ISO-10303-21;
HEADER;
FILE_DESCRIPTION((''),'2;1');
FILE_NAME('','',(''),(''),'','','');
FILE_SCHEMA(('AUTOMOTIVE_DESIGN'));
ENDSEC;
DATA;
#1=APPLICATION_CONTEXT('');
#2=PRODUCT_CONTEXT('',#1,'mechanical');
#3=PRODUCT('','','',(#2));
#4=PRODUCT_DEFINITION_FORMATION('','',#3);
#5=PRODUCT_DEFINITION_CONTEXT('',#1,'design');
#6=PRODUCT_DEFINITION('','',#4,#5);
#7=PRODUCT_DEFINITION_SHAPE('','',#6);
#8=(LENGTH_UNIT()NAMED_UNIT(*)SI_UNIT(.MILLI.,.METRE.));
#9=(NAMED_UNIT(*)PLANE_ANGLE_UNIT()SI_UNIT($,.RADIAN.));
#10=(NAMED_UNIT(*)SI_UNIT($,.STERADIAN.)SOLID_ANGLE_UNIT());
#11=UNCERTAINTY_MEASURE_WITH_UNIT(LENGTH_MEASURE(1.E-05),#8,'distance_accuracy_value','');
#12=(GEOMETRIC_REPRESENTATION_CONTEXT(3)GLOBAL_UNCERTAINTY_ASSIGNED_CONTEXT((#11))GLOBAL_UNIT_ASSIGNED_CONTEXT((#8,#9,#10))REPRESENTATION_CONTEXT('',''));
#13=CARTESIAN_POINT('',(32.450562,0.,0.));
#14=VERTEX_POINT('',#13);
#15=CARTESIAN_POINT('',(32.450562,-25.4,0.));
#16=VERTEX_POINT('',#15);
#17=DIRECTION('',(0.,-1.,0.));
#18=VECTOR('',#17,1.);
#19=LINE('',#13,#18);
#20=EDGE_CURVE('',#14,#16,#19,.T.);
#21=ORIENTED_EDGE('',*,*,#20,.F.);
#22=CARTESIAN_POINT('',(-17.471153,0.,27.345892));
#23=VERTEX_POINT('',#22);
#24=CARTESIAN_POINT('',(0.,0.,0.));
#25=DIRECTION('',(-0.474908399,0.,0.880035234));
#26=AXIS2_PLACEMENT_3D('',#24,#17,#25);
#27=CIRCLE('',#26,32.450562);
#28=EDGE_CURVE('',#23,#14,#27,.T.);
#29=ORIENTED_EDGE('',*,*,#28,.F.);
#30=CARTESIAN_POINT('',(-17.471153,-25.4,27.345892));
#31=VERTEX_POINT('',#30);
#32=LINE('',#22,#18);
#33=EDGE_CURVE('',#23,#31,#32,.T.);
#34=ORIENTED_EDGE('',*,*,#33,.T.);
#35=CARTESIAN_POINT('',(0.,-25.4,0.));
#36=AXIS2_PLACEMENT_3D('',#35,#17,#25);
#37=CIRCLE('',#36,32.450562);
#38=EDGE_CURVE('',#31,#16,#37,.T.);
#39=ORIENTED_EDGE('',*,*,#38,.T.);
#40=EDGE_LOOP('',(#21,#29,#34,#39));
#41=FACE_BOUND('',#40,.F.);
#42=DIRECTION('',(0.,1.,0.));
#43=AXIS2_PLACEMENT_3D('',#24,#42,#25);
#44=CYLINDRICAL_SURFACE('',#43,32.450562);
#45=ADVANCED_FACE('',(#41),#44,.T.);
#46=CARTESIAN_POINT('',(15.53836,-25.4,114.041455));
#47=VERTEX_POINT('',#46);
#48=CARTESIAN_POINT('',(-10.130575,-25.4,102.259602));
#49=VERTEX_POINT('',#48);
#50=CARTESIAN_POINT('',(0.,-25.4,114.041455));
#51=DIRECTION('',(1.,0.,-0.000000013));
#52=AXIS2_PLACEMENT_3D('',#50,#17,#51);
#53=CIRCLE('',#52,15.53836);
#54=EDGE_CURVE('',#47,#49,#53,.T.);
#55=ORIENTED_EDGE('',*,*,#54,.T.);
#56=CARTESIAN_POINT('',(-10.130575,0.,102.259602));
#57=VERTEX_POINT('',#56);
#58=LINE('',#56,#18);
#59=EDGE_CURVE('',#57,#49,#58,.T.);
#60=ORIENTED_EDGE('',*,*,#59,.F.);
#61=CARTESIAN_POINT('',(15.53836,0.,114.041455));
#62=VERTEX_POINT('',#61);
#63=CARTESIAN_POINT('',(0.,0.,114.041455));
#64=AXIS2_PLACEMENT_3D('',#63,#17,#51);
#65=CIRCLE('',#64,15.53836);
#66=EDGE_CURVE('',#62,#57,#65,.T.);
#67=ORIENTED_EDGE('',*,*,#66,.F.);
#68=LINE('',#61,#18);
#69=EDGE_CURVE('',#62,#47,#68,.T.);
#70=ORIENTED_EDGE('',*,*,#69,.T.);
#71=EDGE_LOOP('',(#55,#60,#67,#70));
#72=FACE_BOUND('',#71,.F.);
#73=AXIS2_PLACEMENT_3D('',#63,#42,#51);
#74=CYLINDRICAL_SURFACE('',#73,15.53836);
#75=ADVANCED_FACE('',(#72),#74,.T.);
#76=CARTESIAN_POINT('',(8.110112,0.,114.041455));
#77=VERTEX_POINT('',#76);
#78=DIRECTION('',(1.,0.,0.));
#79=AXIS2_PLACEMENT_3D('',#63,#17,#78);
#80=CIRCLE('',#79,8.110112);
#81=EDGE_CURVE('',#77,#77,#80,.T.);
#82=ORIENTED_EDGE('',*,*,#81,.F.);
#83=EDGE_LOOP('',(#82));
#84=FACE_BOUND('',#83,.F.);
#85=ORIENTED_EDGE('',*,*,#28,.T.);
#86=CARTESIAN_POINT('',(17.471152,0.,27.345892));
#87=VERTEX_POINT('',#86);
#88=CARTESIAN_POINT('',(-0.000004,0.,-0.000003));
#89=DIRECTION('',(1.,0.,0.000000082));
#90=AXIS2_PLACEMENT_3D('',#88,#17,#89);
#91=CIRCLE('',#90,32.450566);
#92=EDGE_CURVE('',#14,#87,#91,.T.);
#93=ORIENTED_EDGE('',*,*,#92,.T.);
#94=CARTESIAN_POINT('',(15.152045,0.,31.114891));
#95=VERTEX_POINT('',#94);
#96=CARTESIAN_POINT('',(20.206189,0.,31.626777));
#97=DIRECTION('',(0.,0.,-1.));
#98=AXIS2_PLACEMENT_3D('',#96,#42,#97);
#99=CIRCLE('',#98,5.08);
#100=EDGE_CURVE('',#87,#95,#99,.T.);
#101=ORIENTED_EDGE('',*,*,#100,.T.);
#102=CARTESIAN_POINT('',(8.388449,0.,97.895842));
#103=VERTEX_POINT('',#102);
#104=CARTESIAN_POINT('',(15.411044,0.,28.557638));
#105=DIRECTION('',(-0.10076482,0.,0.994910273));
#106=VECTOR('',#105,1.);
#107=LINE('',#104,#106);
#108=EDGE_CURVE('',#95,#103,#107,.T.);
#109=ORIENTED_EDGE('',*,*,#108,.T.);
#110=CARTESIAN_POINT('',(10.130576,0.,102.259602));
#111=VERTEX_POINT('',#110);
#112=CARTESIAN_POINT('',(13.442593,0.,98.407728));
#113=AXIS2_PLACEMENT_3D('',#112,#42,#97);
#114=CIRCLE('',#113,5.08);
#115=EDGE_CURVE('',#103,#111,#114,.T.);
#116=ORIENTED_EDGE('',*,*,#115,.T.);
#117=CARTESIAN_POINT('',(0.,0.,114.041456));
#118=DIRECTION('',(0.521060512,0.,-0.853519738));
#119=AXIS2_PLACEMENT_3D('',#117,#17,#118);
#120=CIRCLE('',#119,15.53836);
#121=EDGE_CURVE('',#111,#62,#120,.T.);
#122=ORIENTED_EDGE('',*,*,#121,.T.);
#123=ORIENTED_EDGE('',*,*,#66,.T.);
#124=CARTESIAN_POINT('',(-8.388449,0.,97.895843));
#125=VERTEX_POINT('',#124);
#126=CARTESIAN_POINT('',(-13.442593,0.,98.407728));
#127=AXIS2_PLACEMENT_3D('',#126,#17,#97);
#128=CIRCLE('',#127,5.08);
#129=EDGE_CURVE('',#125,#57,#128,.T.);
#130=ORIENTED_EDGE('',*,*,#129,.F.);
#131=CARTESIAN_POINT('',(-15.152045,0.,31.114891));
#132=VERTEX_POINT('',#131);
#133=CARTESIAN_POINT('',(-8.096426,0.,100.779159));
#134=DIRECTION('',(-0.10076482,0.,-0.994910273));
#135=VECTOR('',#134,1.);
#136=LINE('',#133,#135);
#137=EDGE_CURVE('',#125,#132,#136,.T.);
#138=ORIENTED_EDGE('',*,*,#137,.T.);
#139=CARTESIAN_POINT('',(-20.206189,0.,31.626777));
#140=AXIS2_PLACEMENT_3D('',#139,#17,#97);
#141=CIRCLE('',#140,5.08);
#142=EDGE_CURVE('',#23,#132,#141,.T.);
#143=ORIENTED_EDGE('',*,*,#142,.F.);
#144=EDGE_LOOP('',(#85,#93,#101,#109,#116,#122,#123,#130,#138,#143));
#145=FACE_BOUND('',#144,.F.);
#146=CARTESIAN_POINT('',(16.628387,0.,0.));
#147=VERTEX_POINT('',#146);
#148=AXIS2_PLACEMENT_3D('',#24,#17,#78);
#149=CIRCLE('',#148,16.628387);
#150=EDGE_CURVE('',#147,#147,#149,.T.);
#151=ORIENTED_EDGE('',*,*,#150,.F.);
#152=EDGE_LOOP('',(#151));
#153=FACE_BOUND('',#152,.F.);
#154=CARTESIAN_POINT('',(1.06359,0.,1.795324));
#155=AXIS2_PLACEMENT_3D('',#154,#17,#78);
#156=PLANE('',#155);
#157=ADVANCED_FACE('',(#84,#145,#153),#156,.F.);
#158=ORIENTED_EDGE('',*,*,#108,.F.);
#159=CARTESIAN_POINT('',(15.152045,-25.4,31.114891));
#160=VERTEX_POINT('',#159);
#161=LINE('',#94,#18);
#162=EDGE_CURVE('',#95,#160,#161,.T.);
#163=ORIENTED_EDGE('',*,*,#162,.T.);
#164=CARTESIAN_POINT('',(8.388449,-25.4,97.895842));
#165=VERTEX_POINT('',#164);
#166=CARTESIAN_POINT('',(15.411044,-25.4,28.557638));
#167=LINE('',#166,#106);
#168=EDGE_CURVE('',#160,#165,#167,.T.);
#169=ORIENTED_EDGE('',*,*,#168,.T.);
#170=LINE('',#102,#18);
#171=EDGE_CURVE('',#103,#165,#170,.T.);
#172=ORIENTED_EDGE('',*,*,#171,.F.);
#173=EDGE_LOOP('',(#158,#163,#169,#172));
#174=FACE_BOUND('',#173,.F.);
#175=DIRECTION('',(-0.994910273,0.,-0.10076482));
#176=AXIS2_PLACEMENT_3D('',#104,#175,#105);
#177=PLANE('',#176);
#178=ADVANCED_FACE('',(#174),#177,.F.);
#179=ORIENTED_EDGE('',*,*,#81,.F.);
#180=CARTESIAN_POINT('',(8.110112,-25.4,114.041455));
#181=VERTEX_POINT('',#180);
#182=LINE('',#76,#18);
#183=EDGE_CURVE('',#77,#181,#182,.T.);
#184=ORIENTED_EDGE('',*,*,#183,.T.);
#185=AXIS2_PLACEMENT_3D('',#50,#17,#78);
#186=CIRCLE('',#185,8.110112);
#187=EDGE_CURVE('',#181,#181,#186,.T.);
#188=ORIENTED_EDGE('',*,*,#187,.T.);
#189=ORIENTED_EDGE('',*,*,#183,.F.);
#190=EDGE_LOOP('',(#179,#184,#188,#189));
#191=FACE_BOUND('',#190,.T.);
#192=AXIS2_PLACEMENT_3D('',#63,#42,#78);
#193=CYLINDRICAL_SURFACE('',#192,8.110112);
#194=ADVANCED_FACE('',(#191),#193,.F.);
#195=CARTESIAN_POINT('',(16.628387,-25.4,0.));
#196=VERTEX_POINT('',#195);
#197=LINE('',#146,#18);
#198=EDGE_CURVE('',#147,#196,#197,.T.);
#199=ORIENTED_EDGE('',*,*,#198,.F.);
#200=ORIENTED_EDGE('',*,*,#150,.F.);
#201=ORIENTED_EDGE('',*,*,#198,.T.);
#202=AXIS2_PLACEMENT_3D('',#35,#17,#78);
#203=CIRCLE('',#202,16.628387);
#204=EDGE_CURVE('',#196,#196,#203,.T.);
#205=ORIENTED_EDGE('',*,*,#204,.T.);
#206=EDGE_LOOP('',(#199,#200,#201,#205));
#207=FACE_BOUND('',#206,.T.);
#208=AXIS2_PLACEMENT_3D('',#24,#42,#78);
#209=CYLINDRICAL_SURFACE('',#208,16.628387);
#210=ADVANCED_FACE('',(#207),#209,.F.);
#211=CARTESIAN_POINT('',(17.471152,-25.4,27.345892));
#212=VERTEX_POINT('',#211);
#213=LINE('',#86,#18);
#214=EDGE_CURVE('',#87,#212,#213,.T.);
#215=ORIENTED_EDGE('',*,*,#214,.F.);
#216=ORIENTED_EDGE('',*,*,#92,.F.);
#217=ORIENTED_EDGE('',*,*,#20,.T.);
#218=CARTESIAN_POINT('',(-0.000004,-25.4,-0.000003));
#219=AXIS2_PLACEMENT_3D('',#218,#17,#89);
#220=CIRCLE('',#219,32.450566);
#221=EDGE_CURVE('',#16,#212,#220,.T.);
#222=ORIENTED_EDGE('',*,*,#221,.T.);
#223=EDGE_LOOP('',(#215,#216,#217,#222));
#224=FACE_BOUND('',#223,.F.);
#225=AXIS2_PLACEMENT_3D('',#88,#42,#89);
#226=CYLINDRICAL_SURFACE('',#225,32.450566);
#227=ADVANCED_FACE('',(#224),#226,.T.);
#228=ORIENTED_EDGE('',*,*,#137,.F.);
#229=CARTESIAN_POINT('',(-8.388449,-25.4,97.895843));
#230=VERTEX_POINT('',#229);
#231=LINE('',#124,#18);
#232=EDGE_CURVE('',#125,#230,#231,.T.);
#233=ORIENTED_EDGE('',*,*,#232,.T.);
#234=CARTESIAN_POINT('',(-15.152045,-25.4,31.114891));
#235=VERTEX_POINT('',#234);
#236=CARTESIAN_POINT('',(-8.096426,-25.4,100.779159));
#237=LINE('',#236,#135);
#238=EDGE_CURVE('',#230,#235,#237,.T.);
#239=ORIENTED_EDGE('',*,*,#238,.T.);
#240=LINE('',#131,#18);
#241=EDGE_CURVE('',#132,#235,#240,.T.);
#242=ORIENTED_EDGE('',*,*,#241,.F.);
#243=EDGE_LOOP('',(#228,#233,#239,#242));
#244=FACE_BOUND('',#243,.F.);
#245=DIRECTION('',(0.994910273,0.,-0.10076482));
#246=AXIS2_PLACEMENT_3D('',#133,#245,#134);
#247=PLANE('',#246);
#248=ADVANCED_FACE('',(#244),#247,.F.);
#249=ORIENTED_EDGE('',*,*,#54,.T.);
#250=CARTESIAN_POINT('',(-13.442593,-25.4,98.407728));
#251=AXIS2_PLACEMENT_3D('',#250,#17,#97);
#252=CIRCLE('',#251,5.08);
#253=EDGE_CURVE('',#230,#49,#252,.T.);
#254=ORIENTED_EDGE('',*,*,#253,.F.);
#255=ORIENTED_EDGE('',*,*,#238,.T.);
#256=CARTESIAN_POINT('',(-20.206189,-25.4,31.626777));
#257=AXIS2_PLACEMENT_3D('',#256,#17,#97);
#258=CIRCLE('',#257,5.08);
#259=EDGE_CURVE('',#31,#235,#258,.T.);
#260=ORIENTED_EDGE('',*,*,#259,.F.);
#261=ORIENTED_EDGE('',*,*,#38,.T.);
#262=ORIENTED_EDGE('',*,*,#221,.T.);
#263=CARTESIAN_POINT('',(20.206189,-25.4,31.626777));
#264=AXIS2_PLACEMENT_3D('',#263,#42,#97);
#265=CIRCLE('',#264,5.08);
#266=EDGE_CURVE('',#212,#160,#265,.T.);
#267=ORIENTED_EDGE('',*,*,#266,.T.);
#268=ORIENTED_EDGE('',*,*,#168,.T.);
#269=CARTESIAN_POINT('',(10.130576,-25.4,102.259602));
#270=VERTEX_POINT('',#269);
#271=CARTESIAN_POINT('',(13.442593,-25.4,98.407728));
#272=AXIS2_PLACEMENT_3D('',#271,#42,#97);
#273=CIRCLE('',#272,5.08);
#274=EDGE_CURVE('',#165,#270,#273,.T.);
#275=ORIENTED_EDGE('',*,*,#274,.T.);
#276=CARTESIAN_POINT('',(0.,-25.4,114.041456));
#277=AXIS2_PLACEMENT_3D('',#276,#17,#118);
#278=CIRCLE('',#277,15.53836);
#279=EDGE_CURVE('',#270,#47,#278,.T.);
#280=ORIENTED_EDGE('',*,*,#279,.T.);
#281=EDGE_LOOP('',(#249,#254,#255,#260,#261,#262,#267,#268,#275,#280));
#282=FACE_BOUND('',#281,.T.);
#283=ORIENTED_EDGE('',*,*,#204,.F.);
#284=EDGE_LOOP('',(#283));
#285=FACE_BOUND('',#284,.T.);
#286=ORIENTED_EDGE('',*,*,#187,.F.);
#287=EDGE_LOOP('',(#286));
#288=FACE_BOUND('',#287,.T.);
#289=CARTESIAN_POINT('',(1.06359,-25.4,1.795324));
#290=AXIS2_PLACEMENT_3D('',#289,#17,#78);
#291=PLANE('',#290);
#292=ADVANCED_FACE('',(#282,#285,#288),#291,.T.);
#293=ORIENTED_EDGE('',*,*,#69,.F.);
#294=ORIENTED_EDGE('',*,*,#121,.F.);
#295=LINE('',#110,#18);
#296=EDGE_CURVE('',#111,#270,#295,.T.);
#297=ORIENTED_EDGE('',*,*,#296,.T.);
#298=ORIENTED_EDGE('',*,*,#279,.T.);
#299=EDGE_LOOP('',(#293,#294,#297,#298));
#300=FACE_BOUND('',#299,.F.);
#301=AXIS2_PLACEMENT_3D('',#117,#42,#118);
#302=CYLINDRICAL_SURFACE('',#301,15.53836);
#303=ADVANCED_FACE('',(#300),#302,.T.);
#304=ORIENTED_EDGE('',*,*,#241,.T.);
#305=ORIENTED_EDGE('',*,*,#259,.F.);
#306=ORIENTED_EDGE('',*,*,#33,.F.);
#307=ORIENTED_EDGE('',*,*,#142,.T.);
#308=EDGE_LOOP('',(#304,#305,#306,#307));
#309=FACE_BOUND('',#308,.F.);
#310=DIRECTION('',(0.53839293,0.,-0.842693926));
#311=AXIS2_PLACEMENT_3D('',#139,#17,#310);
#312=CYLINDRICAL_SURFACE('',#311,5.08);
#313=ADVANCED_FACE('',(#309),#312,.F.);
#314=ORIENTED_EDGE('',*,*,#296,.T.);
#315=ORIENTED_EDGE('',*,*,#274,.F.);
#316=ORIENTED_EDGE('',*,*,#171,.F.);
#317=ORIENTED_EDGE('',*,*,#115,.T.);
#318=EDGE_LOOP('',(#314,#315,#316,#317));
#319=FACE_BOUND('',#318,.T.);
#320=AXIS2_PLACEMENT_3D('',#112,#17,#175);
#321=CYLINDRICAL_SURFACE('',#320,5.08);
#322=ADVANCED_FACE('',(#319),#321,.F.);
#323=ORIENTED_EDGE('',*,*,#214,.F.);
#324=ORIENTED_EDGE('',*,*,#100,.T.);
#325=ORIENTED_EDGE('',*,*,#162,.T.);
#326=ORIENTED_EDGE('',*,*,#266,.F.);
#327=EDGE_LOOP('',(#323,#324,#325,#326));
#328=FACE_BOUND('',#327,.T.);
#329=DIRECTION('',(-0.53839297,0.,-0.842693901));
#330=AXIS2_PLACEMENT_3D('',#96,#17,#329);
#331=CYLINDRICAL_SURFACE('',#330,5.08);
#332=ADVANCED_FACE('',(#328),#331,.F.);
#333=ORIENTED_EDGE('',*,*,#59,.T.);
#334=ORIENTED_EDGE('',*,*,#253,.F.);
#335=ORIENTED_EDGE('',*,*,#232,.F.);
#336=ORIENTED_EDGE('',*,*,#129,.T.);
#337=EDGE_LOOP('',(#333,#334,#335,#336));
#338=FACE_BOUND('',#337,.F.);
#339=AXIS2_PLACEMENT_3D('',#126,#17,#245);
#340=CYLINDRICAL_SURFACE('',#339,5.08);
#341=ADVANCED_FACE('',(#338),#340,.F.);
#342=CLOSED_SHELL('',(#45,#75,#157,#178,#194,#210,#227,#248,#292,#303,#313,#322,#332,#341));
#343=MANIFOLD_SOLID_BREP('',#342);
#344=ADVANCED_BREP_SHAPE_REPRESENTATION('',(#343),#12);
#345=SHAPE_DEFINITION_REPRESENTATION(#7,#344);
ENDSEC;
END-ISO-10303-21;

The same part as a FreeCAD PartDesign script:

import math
import FreeCAD as App
import Part
import Sketcher
Q = App.Units.Quantity


def edges_at(feature, points):
    """Names of the edges that pass closest to the given points."""
    edges = feature.Shape.Edges
    near = lambda p: min(range(len(edges)), key=lambda i: edges[i].distToShape(Part.Vertex(*p))[0])
    return sorted({f"Edge{near(p) + 1}" for p in points})

doc = App.newDocument("Part")
body = doc.addObject("PartDesign::Body", "Body")

# Sketch on XZ plane
sketch1 = body.newObject("Sketcher::SketchObject", "Sketch")
sketch1.AttachmentSupport = (doc.getObject("XZ_Plane"), [""])
sketch1.MapMode = "FlatFace"
sketch1.addGeometry(Part.ArcOfCircle(Part.Circle(App.Vector(0, 0, 0), App.Vector(0, 0, 1), 32.450562), math.radians(118.353386), math.radians(359.999999)), False)
sketch1.addGeometry(Part.ArcOfCircle(Part.Circle(App.Vector(-0.000004, -0.000003, 0), App.Vector(0, 0, 1), 32.450566), math.radians(0.000005), math.radians(61.64661)), False)
sketch1.addGeometry(Part.LineSegment(App.Vector(15.411044, 28.557638, 0), App.Vector(8.096426, 100.779159, 0)), False)
sketch1.addGeometry(Part.ArcOfCircle(Part.Circle(App.Vector(0, 114.041456, 0), App.Vector(0, 0, 1), 15.53836), math.radians(-58.596585), math.radians(-0.000002)), False)
sketch1.addGeometry(Part.ArcOfCircle(Part.Circle(App.Vector(0, 114.041455, 0), App.Vector(0, 0, 1), 15.53836), math.radians(-0.000001), math.radians(238.596581)), False)
sketch1.addGeometry(Part.LineSegment(App.Vector(-8.096426, 100.779159, 0), App.Vector(-15.411044, 28.557638, 0)), False)
sketch1.addGeometry(Part.Circle(App.Vector(0, 0, 0), App.Vector(0, 0, 1), 16.628387), False)
sketch1.addGeometry(Part.Circle(App.Vector(0, 114.041455, 0), App.Vector(0, 0, 1), 8.110112), False)
sketch1.addConstraint(Sketcher.Constraint("Tangent", 0, 2, 1, 1))
sketch1.addConstraint(Sketcher.Constraint("Coincident", 1, 2, 2, 1))
sketch1.addConstraint(Sketcher.Constraint("Coincident", 2, 2, 3, 1))
sketch1.addConstraint(Sketcher.Constraint("Tangent", 3, 2, 4, 1))
sketch1.addConstraint(Sketcher.Constraint("Coincident", 4, 2, 5, 1))
sketch1.addConstraint(Sketcher.Constraint("Coincident", 5, 2, 0, 1))
sketch1.addConstraint(Sketcher.Constraint("Coincident", 0, 3, -1, 1))
sketch1.addConstraint(Sketcher.Constraint("Coincident", 6, 3, -1, 1))
sketch1.addConstraint(Sketcher.Constraint("Coincident", 7, 3, 3, 3))
sketch1.addConstraint(Sketcher.Constraint("Equal", 3, 4))
sketch1.addConstraint(Sketcher.Constraint("Symmetric", 2, 2, 4, 2, -2))
sketch1.addConstraint(Sketcher.Constraint("Symmetric", 1, 2, 5, 2, -2))
sketch1.addConstraint(Sketcher.Constraint("PointOnObject", 0, 2, -1))
sketch1.addConstraint(Sketcher.Constraint("Horizontal", 7, 3, 3, 2))
sketch1.addConstraint(Sketcher.Constraint("Radius", 0, Q("32.450562 mm")))
sketch1.addConstraint(Sketcher.Constraint("Radius", 3, Q("15.53836 mm")))
sketch1.addConstraint(Sketcher.Constraint("Diameter", 6, Q("33.256774 mm")))
sketch1.addConstraint(Sketcher.Constraint("Diameter", 7, Q("16.220224 mm")))
sketch1.addConstraint(Sketcher.Constraint("Distance", 2, Q("72.590989 mm")))
sketch1.addConstraint(Sketcher.Constraint("DistanceY", -1, 1, 2, 2, Q("100.779159 mm")))
sketch1.addConstraint(Sketcher.Constraint("DistanceY", -1, 1, 5, 2, Q("28.557638 mm")))
pad1 = body.newObject("PartDesign::Pad", "Pad")
pad1.Profile = sketch1
pad1.Length = Q("1 in")
doc.recompute()

fillet = body.newObject("PartDesign::Fillet", "Fillet")
fillet.Base = (pad1, edges_at(pad1, [
    (15.411, -12.7, 28.558),
    (-15.411, -12.7, 28.558),
    (-8.096, -12.7, 100.779),
    (8.096, -12.7, 100.779),
]))
fillet.Radius = Q("0.2 in")

doc.recompute()
